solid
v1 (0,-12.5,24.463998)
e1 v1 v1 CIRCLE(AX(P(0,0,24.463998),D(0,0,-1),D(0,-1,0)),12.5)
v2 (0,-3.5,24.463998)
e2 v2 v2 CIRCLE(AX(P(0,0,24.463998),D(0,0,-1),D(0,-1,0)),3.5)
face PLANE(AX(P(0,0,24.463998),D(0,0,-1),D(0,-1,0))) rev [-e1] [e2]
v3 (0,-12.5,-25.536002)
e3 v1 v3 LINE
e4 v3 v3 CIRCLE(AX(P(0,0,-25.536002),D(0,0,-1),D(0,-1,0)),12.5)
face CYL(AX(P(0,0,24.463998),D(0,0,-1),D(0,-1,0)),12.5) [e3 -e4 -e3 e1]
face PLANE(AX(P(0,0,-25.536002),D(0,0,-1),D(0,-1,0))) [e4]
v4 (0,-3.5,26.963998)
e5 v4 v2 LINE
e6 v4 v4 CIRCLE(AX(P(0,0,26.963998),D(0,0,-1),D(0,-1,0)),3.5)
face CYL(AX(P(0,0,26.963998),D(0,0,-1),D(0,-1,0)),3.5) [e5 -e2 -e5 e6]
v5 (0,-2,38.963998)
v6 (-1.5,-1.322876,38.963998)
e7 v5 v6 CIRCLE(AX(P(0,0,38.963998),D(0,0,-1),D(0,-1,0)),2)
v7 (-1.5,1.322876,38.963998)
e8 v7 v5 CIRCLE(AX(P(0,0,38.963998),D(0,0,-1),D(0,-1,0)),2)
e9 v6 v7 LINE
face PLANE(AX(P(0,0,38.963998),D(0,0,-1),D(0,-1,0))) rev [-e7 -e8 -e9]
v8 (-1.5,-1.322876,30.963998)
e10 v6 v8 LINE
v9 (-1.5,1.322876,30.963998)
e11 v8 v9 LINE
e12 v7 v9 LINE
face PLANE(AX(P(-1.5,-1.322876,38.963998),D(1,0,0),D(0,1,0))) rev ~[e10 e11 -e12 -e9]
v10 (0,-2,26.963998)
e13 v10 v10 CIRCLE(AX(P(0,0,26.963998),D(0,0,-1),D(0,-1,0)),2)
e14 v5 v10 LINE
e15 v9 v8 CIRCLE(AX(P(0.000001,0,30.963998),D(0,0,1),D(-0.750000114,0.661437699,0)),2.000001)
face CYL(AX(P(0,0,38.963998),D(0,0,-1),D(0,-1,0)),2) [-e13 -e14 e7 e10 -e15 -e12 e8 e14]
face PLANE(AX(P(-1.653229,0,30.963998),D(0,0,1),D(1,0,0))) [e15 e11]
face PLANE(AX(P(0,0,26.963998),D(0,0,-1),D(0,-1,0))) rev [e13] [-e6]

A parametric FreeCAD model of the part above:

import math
import FreeCAD as App
import Part
import Sketcher
Q = App.Units.Quantity

doc = App.newDocument("Part")
params = doc.addObject("Spreadsheet::Sheet", "Params")
for row, (alias, value) in enumerate([
    ("sketch1_width", "2 mm"),
    ("sketch1_width2", "9 mm"),
    ("sketch1_height", "12 mm"),
    ("sketch1_height2", "50 mm"),
    ("sketch1_width3", "12.5 mm"),
    ("revolution_angle", "360 deg"),
    ("sketch2_radius", "2.000001 mm"),
    ("pocket1_length", "8 mm"),
], start=1):
    params.set(f"A{row}", alias)
    params.set(f"B{row}", "=" + value)
    params.setAlias(f"B{row}", alias)

body = doc.addObject("PartDesign::Body", "Body")

sketch1 = doc.addObject("Sketcher::SketchObject", "Sketch")
body.addObject(sketch1)
sketch1.AttachmentSupport = (doc.YZ_Plane, [""])
sketch1.MapMode = "FlatFace"
sketch1.addGeometry([
    Part.LineSegment(App.Vector(-12.5, -25.5, 0), App.Vector(0, -25.5, 0)),
    Part.LineSegment(App.Vector(0, -25.5, 0), App.Vector(0, 39, 0)),
    Part.LineSegment(App.Vector(0, 39, 0), App.Vector(-2, 39, 0)),
    Part.LineSegment(App.Vector(-2, 39, 0), App.Vector(-2, 27, 0)),
    Part.LineSegment(App.Vector(-2, 27, 0), App.Vector(-3.5, 27, 0)),
    Part.LineSegment(App.Vector(-3.5, 27, 0), App.Vector(-3.5, 24.5, 0)),
    Part.LineSegment(App.Vector(-3.5, 24.5, 0), App.Vector(-12.5, 24.5, 0)),
    Part.LineSegment(App.Vector(-12.5, 24.5, 0), App.Vector(-12.5, -25.5, 0)),
], False)
sketch1.addConstraint([
    Sketcher.Constraint("Coincident", 0, 2, 1, 1),
    Sketcher.Constraint("Coincident", 1, 2, 2, 1),
    Sketcher.Constraint("Coincident", 2, 2, 3, 1),
    Sketcher.Constraint("Coincident", 3, 2, 4, 1),
    Sketcher.Constraint("Coincident", 4, 2, 5, 1),
    Sketcher.Constraint("Coincident", 5, 2, 6, 1),
    Sketcher.Constraint("Coincident", 6, 2, 7, 1),
    Sketcher.Constraint("Coincident", 7, 2, 0, 1),
    Sketcher.Constraint("Horizontal", 0),
    Sketcher.Constraint("Vertical", 1),
    Sketcher.Constraint("Horizontal", 2),
    Sketcher.Constraint("Vertical", 3),
    Sketcher.Constraint("Horizontal", 4),
    Sketcher.Constraint("Vertical", 5),
    Sketcher.Constraint("Horizontal", 6),
    Sketcher.Constraint("Vertical", 7),
    Sketcher.Constraint("PointOnObject", 0, 2, -2),
    Sketcher.Constraint("DistanceX", 2, 2, 2, 1, Q("2 mm")),
    Sketcher.Constraint("DistanceX", 6, 2, 6, 1, Q("9 mm")),
    Sketcher.Constraint("DistanceY", 3, 2, 3, 1, Q("12 mm")),
    Sketcher.Constraint("DistanceY", 7, 2, 7, 1, Q("50 mm")),
    Sketcher.Constraint("DistanceX", 0, 1, 0, 2, Q("12.5 mm")),
    Sketcher.Constraint("DistanceY", 1, 1, 1, 2, Q("64.5 mm")),
    Sketcher.Constraint("DistanceY", 0, 2, -1, 1, Q("25.536002 mm")),
])
sketch1.setExpression("Constraints[17]", "Params.sketch1_width")
sketch1.setExpression("Constraints[18]", "Params.sketch1_width2")
sketch1.setExpression("Constraints[19]", "Params.sketch1_height")
sketch1.setExpression("Constraints[20]", "Params.sketch1_height2")
sketch1.setExpression("Constraints[21]", "Params.sketch1_width3")
revolution = doc.addObject("PartDesign::Revolution", "Revolution")
body.addObject(revolution)
revolution.Profile = sketch1
revolution.ReferenceAxis = (sketch1, ["V_Axis"])
revolution.setExpression("Angle", "Params.revolution_angle")

sketch2 = doc.addObject("Sketcher::SketchObject", "Sketch001")
body.addObject(sketch2)
sketch2.AttachmentSupport = (doc.XY_Plane, [""])
sketch2.MapMode = "FlatFace"
sketch2.AttachmentOffset = App.Placement(App.Vector(0, 0, 38.963998), App.Rotation())
sketch2.addGeometry([
    Part.LineSegment(App.Vector(-1.5, -1.3, 0), App.Vector(-1.5, 1.3, 0)),
    Part.ArcOfCircle(Part.Circle(App.Vector(0, 0, 0), App.Vector(0, 0, 1), 2), math.radians(139), math.radians(221)),
], False)
sketch2.addConstraint([
    Sketcher.Constraint("Coincident", 0, 1, 1, 2),
    Sketcher.Constraint("Coincident", 1, 1, 0, 2),
    Sketcher.Constraint("Vertical", 0),
    Sketcher.Constraint("Coincident", 1, 3, -1, 1),
    Sketcher.Constraint("Radius", 1, Q("2.000001 mm")),
    Sketcher.Constraint("DistanceX", 0, 1, -1, 1, Q("1.5 mm")),
])
sketch2.setExpression("Constraints[4]", "Params.sketch2_radius")
pocket1 = doc.addObject("PartDesign::Pocket", "Pocket")
body.addObject(pocket1)
pocket1.Profile = sketch2
pocket1.setExpression("Length", "Params.pocket1_length")

doc.recompute()
